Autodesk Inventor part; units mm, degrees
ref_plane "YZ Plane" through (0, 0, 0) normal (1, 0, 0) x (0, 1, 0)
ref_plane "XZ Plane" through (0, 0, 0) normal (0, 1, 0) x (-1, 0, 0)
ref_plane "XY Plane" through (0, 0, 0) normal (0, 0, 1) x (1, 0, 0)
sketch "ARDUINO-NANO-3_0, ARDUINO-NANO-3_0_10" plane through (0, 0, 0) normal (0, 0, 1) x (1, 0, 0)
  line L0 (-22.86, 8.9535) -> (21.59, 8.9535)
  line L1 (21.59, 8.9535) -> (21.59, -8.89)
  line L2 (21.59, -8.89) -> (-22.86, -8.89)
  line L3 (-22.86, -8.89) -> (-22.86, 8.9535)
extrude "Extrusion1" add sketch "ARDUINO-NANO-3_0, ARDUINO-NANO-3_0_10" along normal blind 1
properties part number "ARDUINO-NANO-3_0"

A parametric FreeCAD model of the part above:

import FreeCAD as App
import Part
import Sketcher

V = App.Vector
Q = App.Units.Quantity


def add_polygon(sketch, points):
    """Adds a closed chain of lines whose ends are joined by coincident constraints."""
    first, n = sketch.GeometryCount, len(points)
    for a, b in zip(points, points[1:] + points[:1]):
        sketch.addGeometry(Part.LineSegment(App.Vector(*a, 0), App.Vector(*b, 0)), False)
    for i in range(n):
        sketch.addConstraint(Sketcher.Constraint("Coincident", first + i, 2, first + (i + 1) % n, 1))

doc = App.newDocument("Part")
body = doc.addObject("PartDesign::Body", "Body")

sketch1 = doc.addObject("Sketcher::SketchObject", "Sketch")
body.addObject(sketch1)
sketch1.AttachmentSupport = (doc.XY_Plane, [""])
sketch1.MapMode = "FlatFace"
add_polygon(sketch1, [(22, 9), (-23, 9), (-23, -9), (22, -9)])
sketch1.addConstraint([
    Sketcher.Constraint("Horizontal", 0),
    Sketcher.Constraint("Vertical", 1),
    Sketcher.Constraint("Horizontal", 2),
    Sketcher.Constraint("Vertical", 3),
    Sketcher.Constraint("DistanceX", 0, 2, 0, 1, Q("44.45 mm")),
    Sketcher.Constraint("DistanceX", 0, 2, -1, 1, Q("22.86 mm")),
    Sketcher.Constraint("DistanceY", 1, 2, -1, 1, Q("8.89 mm")),
    Sketcher.Constraint("DistanceY", 1, 2, 1, 1, Q("17.8435 mm")),
])
pad1 = doc.addObject("PartDesign::Pad", "Pad")
body.addObject(pad1)
pad1.Profile = sketch1
pad1.Length = 1

doc.recompute()
